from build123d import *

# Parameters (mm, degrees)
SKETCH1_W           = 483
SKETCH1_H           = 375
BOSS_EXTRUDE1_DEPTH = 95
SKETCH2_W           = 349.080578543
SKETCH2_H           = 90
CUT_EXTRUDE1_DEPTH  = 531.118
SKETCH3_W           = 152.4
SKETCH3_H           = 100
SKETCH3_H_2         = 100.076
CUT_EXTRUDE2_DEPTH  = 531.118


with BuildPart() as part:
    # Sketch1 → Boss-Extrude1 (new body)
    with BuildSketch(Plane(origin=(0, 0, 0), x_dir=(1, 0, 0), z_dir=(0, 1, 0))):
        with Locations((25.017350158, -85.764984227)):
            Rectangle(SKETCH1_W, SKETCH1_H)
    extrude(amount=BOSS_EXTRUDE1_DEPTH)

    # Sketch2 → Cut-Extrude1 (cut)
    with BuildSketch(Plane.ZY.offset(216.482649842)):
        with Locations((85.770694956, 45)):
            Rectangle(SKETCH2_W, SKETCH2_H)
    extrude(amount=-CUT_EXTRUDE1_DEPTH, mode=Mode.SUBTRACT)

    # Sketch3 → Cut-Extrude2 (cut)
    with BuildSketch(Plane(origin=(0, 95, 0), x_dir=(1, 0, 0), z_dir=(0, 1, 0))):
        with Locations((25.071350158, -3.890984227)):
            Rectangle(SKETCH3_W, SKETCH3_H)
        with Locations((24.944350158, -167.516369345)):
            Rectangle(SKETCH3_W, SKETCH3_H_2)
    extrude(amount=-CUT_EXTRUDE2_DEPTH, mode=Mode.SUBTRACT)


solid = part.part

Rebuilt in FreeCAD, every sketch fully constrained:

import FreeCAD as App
import Part
import Sketcher

V = App.Vector

doc = App.newDocument("Part")
body = doc.addObject("PartDesign::Body", "Body")

# Sketch on XZ plane
sketch1 = doc.addObject("Sketcher::SketchObject", "Sketch")
body.addObject(sketch1)
sketch1.AttachmentSupport = (doc.XZ_Plane, [""])
sketch1.MapMode = "FlatFace"
sketch1.addGeometry([
    Part.LineSegment(V(-216, -102, 0), V(-216, 273, 0)),
    Part.LineSegment(V(-216, 273, 0), V(267, 273, 0)),
    Part.LineSegment(V(267, 273, 0), V(267, -102, 0)),
    Part.LineSegment(V(267, -102, 0), V(-216, -102, 0)),
], False)
sketch1.addConstraint([
    Sketcher.Constraint("Coincident", 0, 2, 1, 1),
    Sketcher.Constraint("Coincident", 1, 2, 2, 1),
    Sketcher.Constraint("Coincident", 2, 2, 3, 1),
    Sketcher.Constraint("Coincident", 3, 2, 0, 1),
    Sketcher.Constraint("Vertical", 0),
    Sketcher.Constraint("Horizontal", 1),
    Sketcher.Constraint("Vertical", 2),
    Sketcher.Constraint("Horizontal", 3),
    Sketcher.Constraint("DistanceX", 1, 1, 1, 2, 483.0),
    Sketcher.Constraint("DistanceY", 0, 1, 0, 2, 375.0),
    Sketcher.Constraint("DistanceX", 0, 2, -1, 1, 216.48265),
    Sketcher.Constraint("DistanceY", -1, 1, 0, 2, 273.264984),
])
pad1 = doc.addObject("PartDesign::Pad", "Pad")
body.addObject(pad1)
pad1.Profile = sketch1
pad1.Length = 95
pad1.Reversed = True

# Sketch on YZ plane
sketch2 = doc.addObject("Sketcher::SketchObject", "Sketch001")
body.addObject(sketch2)
sketch2.AttachmentSupport = (doc.YZ_Plane, [""])
sketch2.MapMode = "FlatFace"
sketch2.AttachmentOffset = App.Placement(V(0, 0, -216.48265), App.Rotation())
sketch2.addGeometry([
    Part.LineSegment(V(90, -89, 0), V(0, -89, 0)),
    Part.LineSegment(V(0, -89, 0), V(0, 260, 0)),
    Part.LineSegment(V(0, 260, 0), V(90, 260, 0)),
    Part.LineSegment(V(90, 260, 0), V(90, -89, 0)),
], False)
sketch2.addConstraint([
    Sketcher.Constraint("Coincident", 0, 2, 1, 1),
    Sketcher.Constraint("Coincident", 1, 2, 2, 1),
    Sketcher.Constraint("Coincident", 2, 2, 3, 1),
    Sketcher.Constraint("Coincident", 3, 2, 0, 1),
    Sketcher.Constraint("Horizontal", 0),
    Sketcher.Constraint("Vertical", 1),
    Sketcher.Constraint("Horizontal", 2),
    Sketcher.Constraint("Vertical", 3),
    Sketcher.Constraint("PointOnObject", 0, 2, -2),
    Sketcher.Constraint("DistanceX", 0, 2, 0, 1, 90.0),
    Sketcher.Constraint("DistanceY", 1, 1, 1, 2, 349.080579),
    Sketcher.Constraint("DistanceY", 0, 2, -1, 1, 88.769594),
])
pocket1 = doc.addObject("PartDesign::Pocket", "Pocket")
body.addObject(pocket1)
pocket1.Profile = sketch2
pocket1.Length = 531.118
pocket1.Reversed = True

# Sketch on XZ plane
sketch3 = doc.addObject("Sketcher::SketchObject", "Sketch002")
body.addObject(sketch3)
sketch3.AttachmentSupport = (doc.XZ_Plane, [""])
sketch3.MapMode = "FlatFace"
sketch3.AttachmentOffset = App.Placement(V(0, 0, -95), App.Rotation())
sketch3.addGeometry([
    Part.LineSegment(V(-51, -46, 0), V(-51, 54, 0)),  # 0
    Part.LineSegment(V(-51, 54, 0), V(101, 54, 0)),  # 1
    Part.LineSegment(V(101, 54, 0), V(101, -46, 0)),  # 2
    Part.LineSegment(V(101, -46, 0), V(-51, -46, 0)),  # 3
    Part.LineSegment(V(-51, 117, 0), V(-51, 218, 0)),  # 4
    Part.LineSegment(V(-51, 218, 0), V(101, 218, 0)),  # 5
    Part.LineSegment(V(101, 218, 0), V(101, 117, 0)),  # 6
    Part.LineSegment(V(101, 117, 0), V(-51, 117, 0)),  # 7
], False)
sketch3.addConstraint([
    Sketcher.Constraint("Coincident", 0, 2, 1, 1),
    Sketcher.Constraint("Coincident", 1, 2, 2, 1),
    Sketcher.Constraint("Coincident", 2, 2, 3, 1),
    Sketcher.Constraint("Coincident", 3, 2, 0, 1),
    Sketcher.Constraint("Coincident", 4, 2, 5, 1),
    Sketcher.Constraint("Coincident", 5, 2, 6, 1),
    Sketcher.Constraint("Coincident", 6, 2, 7, 1),
    Sketcher.Constraint("Coincident", 7, 2, 4, 1),
    Sketcher.Constraint("Vertical", 0),
    Sketcher.Constraint("Horizontal", 1),
    Sketcher.Constraint("Vertical", 2),
    Sketcher.Constraint("Horizontal", 3),
    Sketcher.Constraint("Vertical", 4),
    Sketcher.Constraint("Horizontal", 5),
    Sketcher.Constraint("Vertical", 6),
    Sketcher.Constraint("Horizontal", 7),
    Sketcher.Constraint("Equal", 3, 5),
    Sketcher.Constraint("DistanceY", 0, 1, 0, 2, 100.0),
    Sketcher.Constraint("DistanceX", 1, 1, 1, 2, 152.4),
    Sketcher.Constraint("DistanceY", 4, 1, 4, 2, 100.076),
    Sketcher.Constraint("DistanceX", 4, 2, 0, 2, 0.127),
    Sketcher.Constraint("DistanceX", 0, 2, -1, 1, 51.12865),
    Sketcher.Constraint("DistanceY", -1, 1, 4, 2, 217.554369),
    Sketcher.Constraint("DistanceY", -1, 1, 0, 2, 53.890984),
])
pocket2 = doc.addObject("PartDesign::Pocket", "Pocket001")
body.addObject(pocket2)
pocket2.Profile = sketch3
pocket2.Length = 531.118
pocket2.Reversed = True

doc.recompute()
